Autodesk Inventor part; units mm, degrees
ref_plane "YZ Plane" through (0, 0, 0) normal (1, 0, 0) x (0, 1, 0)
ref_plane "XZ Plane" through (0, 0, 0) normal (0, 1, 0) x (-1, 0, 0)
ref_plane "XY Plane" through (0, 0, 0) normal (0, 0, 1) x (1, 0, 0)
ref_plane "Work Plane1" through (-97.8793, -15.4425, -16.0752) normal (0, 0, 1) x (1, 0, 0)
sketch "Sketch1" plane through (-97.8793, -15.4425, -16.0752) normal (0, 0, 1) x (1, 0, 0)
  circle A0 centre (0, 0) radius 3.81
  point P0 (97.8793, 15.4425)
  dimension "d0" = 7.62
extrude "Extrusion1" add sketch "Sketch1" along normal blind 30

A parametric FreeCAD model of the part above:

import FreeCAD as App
import Part
import Sketcher

V = App.Vector
Q = App.Units.Quantity

doc = App.newDocument("Part")
params = doc.addObject("Spreadsheet::Sheet", "Params")
for row, (alias, value) in enumerate([
    ("sketch1_diameter", "0.3 in"),
    ("pad1_length", "1.1811024 in"),
], start=1):
    params.set(f"A{row}", alias)
    params.set(f"B{row}", "=" + value)
    params.setAlias(f"B{row}", alias)

body = doc.addObject("PartDesign::Body", "Body")

sketch1 = body.newObject("Sketcher::SketchObject", "Sketch")
sketch1.AttachmentSupport = (doc.getObject("XY_Plane"), [""])
sketch1.MapMode = "FlatFace"
sketch1.AttachmentOffset = App.Placement(V(0, 0, -16.0752), App.Rotation())
sketch1.addGeometry(Part.Circle(V(-97.9, -15.4, 0), V(0, 0, 1), 3.8), False)
sketch1.addConstraint([
    Sketcher.Constraint("Diameter", 0, Q("0.3 in")),
    Sketcher.Constraint("DistanceX", 0, 3, -1, 1, 97.8793),
    Sketcher.Constraint("DistanceY", 0, 3, -1, 1, 15.4425),
])
sketch1.setExpression("Constraints[0]", "Params.sketch1_diameter")
pad1 = body.newObject("PartDesign::Pad", "Pad")
pad1.Profile = sketch1
pad1.setExpression("Length", "Params.pad1_length")

doc.recompute()
